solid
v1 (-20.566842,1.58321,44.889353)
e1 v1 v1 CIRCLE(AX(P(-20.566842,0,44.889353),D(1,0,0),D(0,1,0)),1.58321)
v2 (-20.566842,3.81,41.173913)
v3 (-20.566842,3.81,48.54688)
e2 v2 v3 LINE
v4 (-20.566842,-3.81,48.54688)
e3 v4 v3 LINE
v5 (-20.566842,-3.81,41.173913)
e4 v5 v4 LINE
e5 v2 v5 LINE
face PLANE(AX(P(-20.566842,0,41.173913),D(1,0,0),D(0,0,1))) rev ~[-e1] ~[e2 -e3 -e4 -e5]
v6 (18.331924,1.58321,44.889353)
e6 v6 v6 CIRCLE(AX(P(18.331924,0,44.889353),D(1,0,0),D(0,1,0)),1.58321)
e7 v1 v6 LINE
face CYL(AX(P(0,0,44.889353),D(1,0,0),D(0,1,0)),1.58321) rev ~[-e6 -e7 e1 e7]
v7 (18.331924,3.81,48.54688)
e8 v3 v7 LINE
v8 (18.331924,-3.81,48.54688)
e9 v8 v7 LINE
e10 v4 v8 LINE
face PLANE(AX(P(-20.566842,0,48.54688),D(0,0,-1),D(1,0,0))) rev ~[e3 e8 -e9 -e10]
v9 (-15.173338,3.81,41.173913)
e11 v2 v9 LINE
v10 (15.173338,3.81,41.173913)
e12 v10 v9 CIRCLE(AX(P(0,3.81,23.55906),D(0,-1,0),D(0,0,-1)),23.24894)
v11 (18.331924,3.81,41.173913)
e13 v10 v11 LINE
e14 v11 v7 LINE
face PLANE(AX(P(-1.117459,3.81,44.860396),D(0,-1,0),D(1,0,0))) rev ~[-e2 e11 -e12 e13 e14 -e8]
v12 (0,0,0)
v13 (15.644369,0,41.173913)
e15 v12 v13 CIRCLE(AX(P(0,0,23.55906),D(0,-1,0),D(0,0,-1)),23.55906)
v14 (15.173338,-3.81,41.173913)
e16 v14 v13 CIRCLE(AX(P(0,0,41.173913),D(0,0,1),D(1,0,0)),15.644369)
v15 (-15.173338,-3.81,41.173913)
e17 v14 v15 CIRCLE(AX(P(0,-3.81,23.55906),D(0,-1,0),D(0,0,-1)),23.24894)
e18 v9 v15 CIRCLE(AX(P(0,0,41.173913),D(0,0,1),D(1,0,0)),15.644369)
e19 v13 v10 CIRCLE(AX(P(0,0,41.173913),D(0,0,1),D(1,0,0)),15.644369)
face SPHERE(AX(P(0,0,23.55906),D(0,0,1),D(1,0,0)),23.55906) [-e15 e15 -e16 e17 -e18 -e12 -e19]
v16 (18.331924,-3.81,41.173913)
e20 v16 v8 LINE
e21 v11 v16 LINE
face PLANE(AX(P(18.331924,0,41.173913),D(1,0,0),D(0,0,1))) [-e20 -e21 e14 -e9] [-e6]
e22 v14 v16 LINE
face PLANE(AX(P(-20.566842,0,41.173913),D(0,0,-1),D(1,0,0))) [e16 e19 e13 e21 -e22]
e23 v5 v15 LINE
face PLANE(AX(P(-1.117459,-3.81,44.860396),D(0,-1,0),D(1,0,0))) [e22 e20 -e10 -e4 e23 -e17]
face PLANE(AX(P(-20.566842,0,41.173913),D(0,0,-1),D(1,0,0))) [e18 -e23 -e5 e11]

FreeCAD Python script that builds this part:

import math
import FreeCAD as App
import Part
import Sketcher
Q = App.Units.Quantity

doc = App.newDocument("Part")
body = doc.addObject("PartDesign::Body", "Body")

# Sketch on XZ plane
sketch1 = body.newObject("Sketcher::SketchObject", "Sketch")
sketch1.AttachmentSupport = (doc.getObject("XZ_Plane"), [""])
sketch1.MapMode = "FlatFace"
sketch1.addGeometry([
    Part.LineSegment(App.Vector(0, 47, 0), App.Vector(0, 0, 0)),
    Part.ArcOfCircle(Part.Circle(App.Vector(0, 24, 0), App.Vector(0, 0, 1), 24), math.radians(-90), math.radians(90)),
], False)
sketch1.addConstraint([
    Sketcher.Constraint("Coincident", 0, 1, 1, 2),
    Sketcher.Constraint("Coincident", 1, 1, 0, 2),
    Sketcher.Constraint("Vertical", 0),
    Sketcher.Constraint("Coincident", 1, 1, -1, 1),
    Sketcher.Constraint("PointOnObject", 1, 3, -2),
    Sketcher.Constraint("Radius", 1, 23.55906),
])
revolution = body.newObject("PartDesign::Revolution", "Revolution")
revolution.Profile = sketch1
revolution.ReferenceAxis = (sketch1, ["V_Axis"])
revolution.Angle = 360

# Sketch on XZ plane
sketch2 = body.newObject("Sketcher::SketchObject", "Sketch001")
sketch2.AttachmentSupport = (doc.getObject("XZ_Plane"), [""])
sketch2.MapMode = "FlatFace"
sketch2.addGeometry([
    Part.LineSegment(App.Vector(-21, 49, 0), App.Vector(-21, 41, 0)),
    Part.LineSegment(App.Vector(-21, 41, 0), App.Vector(18, 41, 0)),
    Part.LineSegment(App.Vector(18, 41, 0), App.Vector(18, 49, 0)),
    Part.LineSegment(App.Vector(18, 49, 0), App.Vector(-21, 49, 0)),
], False)
sketch2.addConstraint([
    Sketcher.Constraint("Coincident", 0, 2, 1, 1),
    Sketcher.Constraint("Coincident", 1, 2, 2, 1),
    Sketcher.Constraint("Coincident", 2, 2, 3, 1),
    Sketcher.Constraint("Coincident", 3, 2, 0, 1),
    Sketcher.Constraint("Vertical", 0),
    Sketcher.Constraint("Horizontal", 1),
    Sketcher.Constraint("Vertical", 2),
    Sketcher.Constraint("Horizontal", 3),
    Sketcher.Constraint("DistanceX", 1, 1, 1, 2, 38.898766),
    Sketcher.Constraint("DistanceY", 0, 2, 0, 1, 7.372967),
    Sketcher.Constraint("DistanceY", -1, 1, 2, 2, 48.54688),
    Sketcher.Constraint("DistanceX", 0, 2, -1, 1, 20.566842),
])
pad1 = body.newObject("PartDesign::Pad", "Pad")
pad1.Profile = sketch2
pad1.Length = Q("0.3 in")
pad1.Midplane = True

# Sketch on YZ plane
sketch3 = body.newObject("Sketcher::SketchObject", "Sketch002")
sketch3.AttachmentSupport = (doc.getObject("YZ_Plane"), [""])
sketch3.MapMode = "FlatFace"
sketch3.addGeometry(Part.Circle(App.Vector(0, 44.9, 0), App.Vector(0, 0, 1), 1.6), False)
sketch3.addConstraint([
    Sketcher.Constraint("PointOnObject", 0, 3, -2),
    Sketcher.Constraint("Diameter", 0, 3.16642),
    Sketcher.Constraint("DistanceY", -1, 1, 0, 3, 44.889353),
])
pocket1 = body.newObject("PartDesign::Pocket", "Pocket")
pocket1.Profile = sketch3
pocket1.Length = Q("1.8 in")
pocket1.Midplane = True

doc.recompute()
